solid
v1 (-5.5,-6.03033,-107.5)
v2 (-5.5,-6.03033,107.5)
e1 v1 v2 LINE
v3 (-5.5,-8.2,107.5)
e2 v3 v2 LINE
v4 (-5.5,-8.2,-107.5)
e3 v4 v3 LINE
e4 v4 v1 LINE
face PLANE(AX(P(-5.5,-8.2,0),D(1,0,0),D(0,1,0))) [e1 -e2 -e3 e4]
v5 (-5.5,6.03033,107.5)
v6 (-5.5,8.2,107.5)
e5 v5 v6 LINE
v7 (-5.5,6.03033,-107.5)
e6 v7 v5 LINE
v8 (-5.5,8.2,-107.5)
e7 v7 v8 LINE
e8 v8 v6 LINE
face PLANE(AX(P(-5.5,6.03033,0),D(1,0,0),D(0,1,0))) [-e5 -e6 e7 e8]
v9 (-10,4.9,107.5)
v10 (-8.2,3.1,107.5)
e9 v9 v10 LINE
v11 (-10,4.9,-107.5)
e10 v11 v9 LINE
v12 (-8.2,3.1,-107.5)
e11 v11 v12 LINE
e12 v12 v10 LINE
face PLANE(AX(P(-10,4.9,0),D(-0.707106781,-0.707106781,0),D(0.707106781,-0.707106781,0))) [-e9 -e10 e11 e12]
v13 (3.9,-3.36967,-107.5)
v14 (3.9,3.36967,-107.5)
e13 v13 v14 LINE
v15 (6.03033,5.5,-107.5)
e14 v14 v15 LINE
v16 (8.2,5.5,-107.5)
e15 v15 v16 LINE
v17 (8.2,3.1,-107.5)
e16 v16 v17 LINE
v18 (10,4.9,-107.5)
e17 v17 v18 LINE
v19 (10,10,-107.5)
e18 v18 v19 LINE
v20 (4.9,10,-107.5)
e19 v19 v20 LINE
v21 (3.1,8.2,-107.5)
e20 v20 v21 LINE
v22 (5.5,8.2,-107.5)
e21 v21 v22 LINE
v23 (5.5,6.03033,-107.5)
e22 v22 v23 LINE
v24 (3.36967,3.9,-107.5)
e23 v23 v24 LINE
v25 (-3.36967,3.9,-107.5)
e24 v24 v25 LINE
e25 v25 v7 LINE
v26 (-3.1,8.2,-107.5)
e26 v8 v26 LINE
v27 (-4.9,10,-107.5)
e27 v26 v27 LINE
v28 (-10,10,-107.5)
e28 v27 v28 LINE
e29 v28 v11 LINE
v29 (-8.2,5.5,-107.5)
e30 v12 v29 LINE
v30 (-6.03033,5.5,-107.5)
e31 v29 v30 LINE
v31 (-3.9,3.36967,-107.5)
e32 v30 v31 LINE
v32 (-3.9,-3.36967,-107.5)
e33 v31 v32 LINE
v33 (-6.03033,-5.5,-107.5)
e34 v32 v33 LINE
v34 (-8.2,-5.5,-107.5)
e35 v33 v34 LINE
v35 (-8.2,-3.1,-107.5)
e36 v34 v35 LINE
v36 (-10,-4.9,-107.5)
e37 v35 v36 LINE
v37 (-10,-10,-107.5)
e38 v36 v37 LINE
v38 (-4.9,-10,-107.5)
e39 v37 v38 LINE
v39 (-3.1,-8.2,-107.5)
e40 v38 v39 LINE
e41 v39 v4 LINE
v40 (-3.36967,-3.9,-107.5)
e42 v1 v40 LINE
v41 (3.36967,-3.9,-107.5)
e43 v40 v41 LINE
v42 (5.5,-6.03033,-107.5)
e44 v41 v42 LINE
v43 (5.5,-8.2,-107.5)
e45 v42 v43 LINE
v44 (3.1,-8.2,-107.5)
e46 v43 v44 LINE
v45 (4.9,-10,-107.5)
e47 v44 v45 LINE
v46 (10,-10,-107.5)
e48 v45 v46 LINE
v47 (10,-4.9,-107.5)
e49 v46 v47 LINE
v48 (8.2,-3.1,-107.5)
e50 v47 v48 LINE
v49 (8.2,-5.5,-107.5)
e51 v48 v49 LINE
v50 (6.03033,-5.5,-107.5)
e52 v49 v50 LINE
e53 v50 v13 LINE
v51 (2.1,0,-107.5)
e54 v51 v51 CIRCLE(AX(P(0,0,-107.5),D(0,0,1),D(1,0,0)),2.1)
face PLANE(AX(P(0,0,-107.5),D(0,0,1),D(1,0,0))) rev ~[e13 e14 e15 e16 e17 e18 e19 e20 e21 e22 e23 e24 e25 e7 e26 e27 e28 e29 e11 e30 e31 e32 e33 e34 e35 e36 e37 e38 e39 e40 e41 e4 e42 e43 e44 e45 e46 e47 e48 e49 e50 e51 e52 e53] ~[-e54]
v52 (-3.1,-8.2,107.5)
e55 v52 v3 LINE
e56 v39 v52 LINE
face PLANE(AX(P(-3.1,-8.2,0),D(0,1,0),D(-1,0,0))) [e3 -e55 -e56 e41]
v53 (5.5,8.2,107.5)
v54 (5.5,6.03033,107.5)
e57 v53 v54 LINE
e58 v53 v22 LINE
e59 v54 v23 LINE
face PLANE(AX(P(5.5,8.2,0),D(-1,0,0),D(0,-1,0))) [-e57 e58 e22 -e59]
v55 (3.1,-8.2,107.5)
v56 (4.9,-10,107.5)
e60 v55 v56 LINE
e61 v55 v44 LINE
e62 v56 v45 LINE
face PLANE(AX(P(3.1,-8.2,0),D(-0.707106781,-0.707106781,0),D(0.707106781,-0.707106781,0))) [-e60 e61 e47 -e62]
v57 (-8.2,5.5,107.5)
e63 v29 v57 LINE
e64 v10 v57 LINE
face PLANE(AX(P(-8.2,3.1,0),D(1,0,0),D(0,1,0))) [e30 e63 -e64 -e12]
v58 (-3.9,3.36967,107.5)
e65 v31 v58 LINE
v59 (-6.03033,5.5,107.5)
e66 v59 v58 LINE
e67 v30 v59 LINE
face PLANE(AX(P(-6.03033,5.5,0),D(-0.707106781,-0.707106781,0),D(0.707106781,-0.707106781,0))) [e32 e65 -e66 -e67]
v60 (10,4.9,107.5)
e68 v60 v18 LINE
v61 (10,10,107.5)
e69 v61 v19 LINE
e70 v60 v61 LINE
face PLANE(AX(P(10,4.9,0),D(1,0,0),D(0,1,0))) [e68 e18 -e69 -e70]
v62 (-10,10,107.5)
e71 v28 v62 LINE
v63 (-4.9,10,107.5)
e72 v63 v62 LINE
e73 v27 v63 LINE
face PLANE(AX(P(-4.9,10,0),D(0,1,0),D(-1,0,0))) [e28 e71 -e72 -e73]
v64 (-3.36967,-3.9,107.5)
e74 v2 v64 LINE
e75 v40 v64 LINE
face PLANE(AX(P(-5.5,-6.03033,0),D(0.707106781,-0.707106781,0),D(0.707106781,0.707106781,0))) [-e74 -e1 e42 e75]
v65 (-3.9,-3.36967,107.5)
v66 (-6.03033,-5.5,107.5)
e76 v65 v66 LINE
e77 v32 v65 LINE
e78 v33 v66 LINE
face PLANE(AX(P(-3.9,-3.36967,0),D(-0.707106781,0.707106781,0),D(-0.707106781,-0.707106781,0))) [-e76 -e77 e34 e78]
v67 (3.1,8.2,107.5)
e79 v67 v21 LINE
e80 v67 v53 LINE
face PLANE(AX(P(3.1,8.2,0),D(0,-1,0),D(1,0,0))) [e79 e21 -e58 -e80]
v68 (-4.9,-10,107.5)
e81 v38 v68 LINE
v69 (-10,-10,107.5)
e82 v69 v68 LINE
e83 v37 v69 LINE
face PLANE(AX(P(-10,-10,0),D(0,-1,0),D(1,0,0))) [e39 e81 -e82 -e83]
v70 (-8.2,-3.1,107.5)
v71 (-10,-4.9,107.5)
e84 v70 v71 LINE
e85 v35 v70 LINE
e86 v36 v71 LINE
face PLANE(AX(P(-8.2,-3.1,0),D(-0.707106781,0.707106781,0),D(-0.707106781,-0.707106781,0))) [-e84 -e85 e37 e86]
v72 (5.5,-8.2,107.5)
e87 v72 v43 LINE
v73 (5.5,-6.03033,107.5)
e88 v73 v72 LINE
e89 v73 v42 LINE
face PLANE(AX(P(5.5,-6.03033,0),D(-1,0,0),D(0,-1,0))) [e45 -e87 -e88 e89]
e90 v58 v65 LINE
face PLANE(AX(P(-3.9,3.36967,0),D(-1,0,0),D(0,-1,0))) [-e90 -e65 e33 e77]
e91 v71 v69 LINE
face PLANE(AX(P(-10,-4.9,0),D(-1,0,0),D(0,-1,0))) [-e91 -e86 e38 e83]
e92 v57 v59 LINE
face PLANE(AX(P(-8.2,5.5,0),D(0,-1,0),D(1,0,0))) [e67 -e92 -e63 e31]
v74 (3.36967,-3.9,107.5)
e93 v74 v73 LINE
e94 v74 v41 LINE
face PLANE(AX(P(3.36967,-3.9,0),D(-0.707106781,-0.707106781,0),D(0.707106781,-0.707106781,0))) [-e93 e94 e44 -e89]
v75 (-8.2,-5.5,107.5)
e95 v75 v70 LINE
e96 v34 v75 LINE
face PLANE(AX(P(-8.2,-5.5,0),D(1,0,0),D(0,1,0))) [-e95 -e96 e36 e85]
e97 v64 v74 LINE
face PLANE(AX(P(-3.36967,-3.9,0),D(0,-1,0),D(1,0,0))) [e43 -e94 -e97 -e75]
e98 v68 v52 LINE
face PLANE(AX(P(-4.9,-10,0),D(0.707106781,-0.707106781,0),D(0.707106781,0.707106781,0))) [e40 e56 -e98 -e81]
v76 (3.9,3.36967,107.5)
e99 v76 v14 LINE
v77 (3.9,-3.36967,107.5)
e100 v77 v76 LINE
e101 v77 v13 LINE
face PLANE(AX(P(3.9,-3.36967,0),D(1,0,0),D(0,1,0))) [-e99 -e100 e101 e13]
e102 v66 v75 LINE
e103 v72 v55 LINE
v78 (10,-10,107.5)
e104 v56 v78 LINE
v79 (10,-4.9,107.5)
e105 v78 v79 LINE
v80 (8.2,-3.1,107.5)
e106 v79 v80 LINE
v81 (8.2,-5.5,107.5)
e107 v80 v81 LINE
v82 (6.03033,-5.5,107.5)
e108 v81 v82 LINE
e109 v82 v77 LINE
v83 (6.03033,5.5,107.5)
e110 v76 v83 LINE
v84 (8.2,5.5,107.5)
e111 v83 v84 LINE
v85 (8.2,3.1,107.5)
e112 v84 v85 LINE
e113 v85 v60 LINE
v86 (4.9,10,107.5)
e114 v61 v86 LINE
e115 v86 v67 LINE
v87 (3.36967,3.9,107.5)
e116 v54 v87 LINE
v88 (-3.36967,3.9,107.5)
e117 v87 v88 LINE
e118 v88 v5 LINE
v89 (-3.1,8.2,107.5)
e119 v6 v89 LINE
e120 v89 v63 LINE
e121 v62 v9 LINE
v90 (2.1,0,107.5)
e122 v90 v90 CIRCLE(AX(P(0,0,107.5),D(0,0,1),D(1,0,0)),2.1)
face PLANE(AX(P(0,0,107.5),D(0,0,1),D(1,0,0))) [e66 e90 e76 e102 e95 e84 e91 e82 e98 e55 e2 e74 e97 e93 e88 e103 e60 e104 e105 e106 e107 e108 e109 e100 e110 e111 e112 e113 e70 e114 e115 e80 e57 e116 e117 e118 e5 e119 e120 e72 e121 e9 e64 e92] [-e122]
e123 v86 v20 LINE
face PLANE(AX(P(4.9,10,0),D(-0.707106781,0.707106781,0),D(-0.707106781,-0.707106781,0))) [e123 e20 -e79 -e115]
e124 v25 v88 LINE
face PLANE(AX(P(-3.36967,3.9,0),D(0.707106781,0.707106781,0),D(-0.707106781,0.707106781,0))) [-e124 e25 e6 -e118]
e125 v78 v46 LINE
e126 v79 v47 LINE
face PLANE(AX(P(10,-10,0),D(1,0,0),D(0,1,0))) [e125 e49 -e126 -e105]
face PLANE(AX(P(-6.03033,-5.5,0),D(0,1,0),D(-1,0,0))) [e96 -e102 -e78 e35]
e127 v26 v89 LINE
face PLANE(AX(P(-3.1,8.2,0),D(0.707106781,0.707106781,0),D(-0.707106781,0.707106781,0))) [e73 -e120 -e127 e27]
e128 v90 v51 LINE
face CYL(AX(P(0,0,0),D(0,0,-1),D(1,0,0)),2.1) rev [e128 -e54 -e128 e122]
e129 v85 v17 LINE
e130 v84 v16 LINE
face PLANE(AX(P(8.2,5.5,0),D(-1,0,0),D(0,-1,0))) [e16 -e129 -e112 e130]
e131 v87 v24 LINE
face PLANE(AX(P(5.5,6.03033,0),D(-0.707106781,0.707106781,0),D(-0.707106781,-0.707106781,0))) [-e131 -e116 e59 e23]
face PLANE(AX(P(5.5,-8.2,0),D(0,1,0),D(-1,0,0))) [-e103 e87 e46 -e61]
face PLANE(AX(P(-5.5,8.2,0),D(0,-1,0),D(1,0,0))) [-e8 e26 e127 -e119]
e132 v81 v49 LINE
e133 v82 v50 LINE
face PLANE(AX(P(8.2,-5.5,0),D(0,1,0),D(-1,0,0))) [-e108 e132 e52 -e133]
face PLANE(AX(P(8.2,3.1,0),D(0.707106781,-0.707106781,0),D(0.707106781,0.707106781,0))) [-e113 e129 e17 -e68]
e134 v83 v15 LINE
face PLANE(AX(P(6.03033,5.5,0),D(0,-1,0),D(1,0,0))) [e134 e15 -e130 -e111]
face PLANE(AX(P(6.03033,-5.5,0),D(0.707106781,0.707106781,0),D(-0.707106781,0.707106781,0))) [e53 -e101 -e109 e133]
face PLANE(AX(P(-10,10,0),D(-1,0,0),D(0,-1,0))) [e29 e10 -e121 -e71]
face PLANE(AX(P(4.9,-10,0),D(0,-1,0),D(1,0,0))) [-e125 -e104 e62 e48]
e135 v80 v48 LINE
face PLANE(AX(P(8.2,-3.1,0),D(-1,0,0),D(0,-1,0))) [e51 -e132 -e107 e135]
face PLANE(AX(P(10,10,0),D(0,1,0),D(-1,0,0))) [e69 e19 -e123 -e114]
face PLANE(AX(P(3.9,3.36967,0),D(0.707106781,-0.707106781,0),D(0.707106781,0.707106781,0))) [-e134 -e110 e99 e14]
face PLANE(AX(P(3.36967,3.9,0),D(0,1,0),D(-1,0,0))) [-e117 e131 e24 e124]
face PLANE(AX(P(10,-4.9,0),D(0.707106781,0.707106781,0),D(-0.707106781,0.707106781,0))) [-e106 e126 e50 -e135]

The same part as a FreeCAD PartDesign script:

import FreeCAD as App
import Part
import Sketcher


def add_polygon(sketch, points):
    """Adds a closed chain of lines whose ends are joined by coincident constraints."""
    first, n = sketch.GeometryCount, len(points)
    for a, b in zip(points, points[1:] + points[:1]):
        sketch.addGeometry(Part.LineSegment(App.Vector(*a, 0), App.Vector(*b, 0)), False)
    for i in range(n):
        sketch.addConstraint(Sketcher.Constraint("Coincident", first + i, 2, first + (i + 1) % n, 1))

doc = App.newDocument("Part")
body = doc.addObject("PartDesign::Body", "Body")

# Sketch on XY plane
sketch1 = body.newObject("Sketcher::SketchObject", "Sketch")
sketch1.AttachmentSupport = (doc.getObject("XY_Plane"), [""])
sketch1.MapMode = "FlatFace"
add_polygon(sketch1, [(3.4, 3.9), (-3.4, 3.9), (-5.5, 6), (-5.5, 8.2), (-3.1, 8.2), (-4.9, 10), (-10, 10), (-10, 4.9), (-8.2, 3.1), (-8.2, 5.5), (-6, 5.5), (-3.9, 3.4), (-3.9, -3.4), (-6, -5.5), (-8.2, -5.5), (-8.2, -3.1), (-10, -4.9), (-10, -10), (-4.9, -10), (-3.1, -8.2), (-5.5, -8.2), (-5.5, -6), (-3.4, -3.9), (3.4, -3.9), (5.5, -6), (5.5, -8.2), (3.1, -8.2), (4.9, -10), (10, -10), (10, -4.9), (8.2, -3.1), (8.2, -5.5), (6, -5.5), (3.9, -3.4), (3.9, 3.4), (6, 5.5), (8.2, 5.5), (8.2, 3.1), (10, 4.9), (10, 10), (4.9, 10), (3.1, 8.2), (5.5, 8.2), (5.5, 6)])  # lines 0-43
sketch1.addGeometry(Part.Circle(App.Vector(0, 0, 0), App.Vector(0, 0, 1), 2.1), False)  # 44
sketch1.addConstraint(Sketcher.Constraint("Horizontal", 0))
sketch1.addConstraint(Sketcher.Constraint("Vertical", 2))
sketch1.addConstraint(Sketcher.Constraint("Horizontal", 3))
sketch1.addConstraint(Sketcher.Constraint("Horizontal", 5))
sketch1.addConstraint(Sketcher.Constraint("Vertical", 6))
sketch1.addConstraint(Sketcher.Constraint("Vertical", 8))
sketch1.addConstraint(Sketcher.Constraint("Horizontal", 9))
sketch1.addConstraint(Sketcher.Constraint("Vertical", 11))
sketch1.addConstraint(Sketcher.Constraint("Horizontal", 13))
sketch1.addConstraint(Sketcher.Constraint("Vertical", 14))
sketch1.addConstraint(Sketcher.Constraint("Vertical", 16))
sketch1.addConstraint(Sketcher.Constraint("Horizontal", 17))
sketch1.addConstraint(Sketcher.Constraint("Horizontal", 19))
sketch1.addConstraint(Sketcher.Constraint("Vertical", 20))
sketch1.addConstraint(Sketcher.Constraint("Horizontal", 22))
sketch1.addConstraint(Sketcher.Constraint("Vertical", 24))
sketch1.addConstraint(Sketcher.Constraint("Horizontal", 25))
sketch1.addConstraint(Sketcher.Constraint("Horizontal", 27))
sketch1.addConstraint(Sketcher.Constraint("Vertical", 28))
sketch1.addConstraint(Sketcher.Constraint("Vertical", 30))
sketch1.addConstraint(Sketcher.Constraint("Horizontal", 31))
sketch1.addConstraint(Sketcher.Constraint("Vertical", 33))
sketch1.addConstraint(Sketcher.Constraint("Horizontal", 35))
sketch1.addConstraint(Sketcher.Constraint("Vertical", 36))
sketch1.addConstraint(Sketcher.Constraint("Vertical", 38))
sketch1.addConstraint(Sketcher.Constraint("Horizontal", 39))
sketch1.addConstraint(Sketcher.Constraint("Horizontal", 41))
sketch1.addConstraint(Sketcher.Constraint("Vertical", 42))
sketch1.addConstraint(Sketcher.Constraint("Coincident", 44, 3, -1, 1))
sketch1.addConstraint(Sketcher.Constraint("Symmetric", 0, 2, 22, 2, -1, 1))
sketch1.addConstraint(Sketcher.Constraint("Symmetric", 1, 2, 23, 2, -1, 1))
sketch1.addConstraint(Sketcher.Constraint("Symmetric", 3, 2, 25, 2, -1, 1))
sketch1.addConstraint(Sketcher.Constraint("Symmetric", 4, 2, 26, 2, -1, 1))
sketch1.addConstraint(Sketcher.Constraint("Symmetric", 6, 2, 28, 2, -1, 1))
sketch1.addConstraint(Sketcher.Constraint("Symmetric", 7, 2, 29, 2, -1, 1))
sketch1.addConstraint(Sketcher.Constraint("Symmetric", 9, 2, 31, 2, -1, 1))
sketch1.addConstraint(Sketcher.Constraint("Symmetric", 10, 2, 32, 2, -1, 1))
sketch1.addConstraint(Sketcher.Constraint("Symmetric", 12, 2, 34, 2, -1, 1))
sketch1.addConstraint(Sketcher.Constraint("Symmetric", 14, 2, 36, 2, -1, 1))
sketch1.addConstraint(Sketcher.Constraint("Symmetric", 15, 2, 37, 2, -1, 1))
sketch1.addConstraint(Sketcher.Constraint("Symmetric", 17, 2, 39, 2, -1, 1))
sketch1.addConstraint(Sketcher.Constraint("Symmetric", 18, 2, 40, 2, -1, 1))
sketch1.addConstraint(Sketcher.Constraint("Symmetric", 20, 2, 42, 2, -1, 1))
sketch1.addConstraint(Sketcher.Constraint("Symmetric", 20, 2, 23, 2, -2))
sketch1.addConstraint(Sketcher.Constraint("Symmetric", 18, 2, 25, 2, -2))
sketch1.addConstraint(Sketcher.Constraint("Symmetric", 17, 2, 26, 2, -2))
sketch1.addConstraint(Sketcher.Constraint("Symmetric", 15, 2, 28, 2, -2))
sketch1.addConstraint(Sketcher.Constraint("Symmetric", 14, 2, 29, 2, -2))
sketch1.addConstraint(Sketcher.Constraint("Symmetric", 12, 2, 31, 2, -2))
sketch1.addConstraint(Sketcher.Constraint("Parallel", 1, 4))
sketch1.addConstraint(Sketcher.Constraint("Parallel", 4, 7))
sketch1.addConstraint(Sketcher.Constraint("Parallel", 7, 10))
sketch1.addConstraint(Sketcher.Constraint("Perpendicular", 10, 12))
sketch1.addConstraint(Sketcher.Constraint("Parallel", 12, 15))
sketch1.addConstraint(Sketcher.Constraint("Parallel", 18, 21))
sketch1.addConstraint(Sketcher.Constraint("Perpendicular", 32, 34))
sketch1.addConstraint(Sketcher.Constraint("Parallel", 40, 43))
sketch1.addConstraint(Sketcher.Constraint("Equal", 35, 2))
sketch1.addConstraint(Sketcher.Constraint("Equal", 39, 6))
sketch1.addConstraint(Sketcher.Constraint("Equal", 41, 8))
sketch1.addConstraint(Sketcher.Constraint("Equal", 22, 11))
sketch1.addConstraint(Sketcher.Constraint("Equal", 4, 7))
sketch1.addConstraint(Sketcher.Constraint("Equal", 1, 10))
sketch1.addConstraint(Sketcher.Constraint("Diameter", 44, 4.2))
sketch1.addConstraint(Sketcher.Constraint("DistanceX", 3, 1, 3, 2, 2.4))
sketch1.addConstraint(Sketcher.Constraint("DistanceX", 5, 2, 5, 1, 5.1))
sketch1.addConstraint(Sketcher.Constraint("DistanceY", -1, 1, 4, 2, 10.0))
sketch1.addConstraint(Sketcher.Constraint("DistanceY", 0, 2, 6, 2, 1.0))
sketch1.addConstraint(Sketcher.Constraint("DistanceY", 15, 2, 7, 2, 8.0))
sketch1.addConstraint(Sketcher.Constraint("DistanceX", 0, 2, 0, 1, 6.73934))
pad1 = body.newObject("PartDesign::Pad", "Pad")
pad1.Profile = sketch1
pad1.Length = 215
pad1.Midplane = True

doc.recompute()
